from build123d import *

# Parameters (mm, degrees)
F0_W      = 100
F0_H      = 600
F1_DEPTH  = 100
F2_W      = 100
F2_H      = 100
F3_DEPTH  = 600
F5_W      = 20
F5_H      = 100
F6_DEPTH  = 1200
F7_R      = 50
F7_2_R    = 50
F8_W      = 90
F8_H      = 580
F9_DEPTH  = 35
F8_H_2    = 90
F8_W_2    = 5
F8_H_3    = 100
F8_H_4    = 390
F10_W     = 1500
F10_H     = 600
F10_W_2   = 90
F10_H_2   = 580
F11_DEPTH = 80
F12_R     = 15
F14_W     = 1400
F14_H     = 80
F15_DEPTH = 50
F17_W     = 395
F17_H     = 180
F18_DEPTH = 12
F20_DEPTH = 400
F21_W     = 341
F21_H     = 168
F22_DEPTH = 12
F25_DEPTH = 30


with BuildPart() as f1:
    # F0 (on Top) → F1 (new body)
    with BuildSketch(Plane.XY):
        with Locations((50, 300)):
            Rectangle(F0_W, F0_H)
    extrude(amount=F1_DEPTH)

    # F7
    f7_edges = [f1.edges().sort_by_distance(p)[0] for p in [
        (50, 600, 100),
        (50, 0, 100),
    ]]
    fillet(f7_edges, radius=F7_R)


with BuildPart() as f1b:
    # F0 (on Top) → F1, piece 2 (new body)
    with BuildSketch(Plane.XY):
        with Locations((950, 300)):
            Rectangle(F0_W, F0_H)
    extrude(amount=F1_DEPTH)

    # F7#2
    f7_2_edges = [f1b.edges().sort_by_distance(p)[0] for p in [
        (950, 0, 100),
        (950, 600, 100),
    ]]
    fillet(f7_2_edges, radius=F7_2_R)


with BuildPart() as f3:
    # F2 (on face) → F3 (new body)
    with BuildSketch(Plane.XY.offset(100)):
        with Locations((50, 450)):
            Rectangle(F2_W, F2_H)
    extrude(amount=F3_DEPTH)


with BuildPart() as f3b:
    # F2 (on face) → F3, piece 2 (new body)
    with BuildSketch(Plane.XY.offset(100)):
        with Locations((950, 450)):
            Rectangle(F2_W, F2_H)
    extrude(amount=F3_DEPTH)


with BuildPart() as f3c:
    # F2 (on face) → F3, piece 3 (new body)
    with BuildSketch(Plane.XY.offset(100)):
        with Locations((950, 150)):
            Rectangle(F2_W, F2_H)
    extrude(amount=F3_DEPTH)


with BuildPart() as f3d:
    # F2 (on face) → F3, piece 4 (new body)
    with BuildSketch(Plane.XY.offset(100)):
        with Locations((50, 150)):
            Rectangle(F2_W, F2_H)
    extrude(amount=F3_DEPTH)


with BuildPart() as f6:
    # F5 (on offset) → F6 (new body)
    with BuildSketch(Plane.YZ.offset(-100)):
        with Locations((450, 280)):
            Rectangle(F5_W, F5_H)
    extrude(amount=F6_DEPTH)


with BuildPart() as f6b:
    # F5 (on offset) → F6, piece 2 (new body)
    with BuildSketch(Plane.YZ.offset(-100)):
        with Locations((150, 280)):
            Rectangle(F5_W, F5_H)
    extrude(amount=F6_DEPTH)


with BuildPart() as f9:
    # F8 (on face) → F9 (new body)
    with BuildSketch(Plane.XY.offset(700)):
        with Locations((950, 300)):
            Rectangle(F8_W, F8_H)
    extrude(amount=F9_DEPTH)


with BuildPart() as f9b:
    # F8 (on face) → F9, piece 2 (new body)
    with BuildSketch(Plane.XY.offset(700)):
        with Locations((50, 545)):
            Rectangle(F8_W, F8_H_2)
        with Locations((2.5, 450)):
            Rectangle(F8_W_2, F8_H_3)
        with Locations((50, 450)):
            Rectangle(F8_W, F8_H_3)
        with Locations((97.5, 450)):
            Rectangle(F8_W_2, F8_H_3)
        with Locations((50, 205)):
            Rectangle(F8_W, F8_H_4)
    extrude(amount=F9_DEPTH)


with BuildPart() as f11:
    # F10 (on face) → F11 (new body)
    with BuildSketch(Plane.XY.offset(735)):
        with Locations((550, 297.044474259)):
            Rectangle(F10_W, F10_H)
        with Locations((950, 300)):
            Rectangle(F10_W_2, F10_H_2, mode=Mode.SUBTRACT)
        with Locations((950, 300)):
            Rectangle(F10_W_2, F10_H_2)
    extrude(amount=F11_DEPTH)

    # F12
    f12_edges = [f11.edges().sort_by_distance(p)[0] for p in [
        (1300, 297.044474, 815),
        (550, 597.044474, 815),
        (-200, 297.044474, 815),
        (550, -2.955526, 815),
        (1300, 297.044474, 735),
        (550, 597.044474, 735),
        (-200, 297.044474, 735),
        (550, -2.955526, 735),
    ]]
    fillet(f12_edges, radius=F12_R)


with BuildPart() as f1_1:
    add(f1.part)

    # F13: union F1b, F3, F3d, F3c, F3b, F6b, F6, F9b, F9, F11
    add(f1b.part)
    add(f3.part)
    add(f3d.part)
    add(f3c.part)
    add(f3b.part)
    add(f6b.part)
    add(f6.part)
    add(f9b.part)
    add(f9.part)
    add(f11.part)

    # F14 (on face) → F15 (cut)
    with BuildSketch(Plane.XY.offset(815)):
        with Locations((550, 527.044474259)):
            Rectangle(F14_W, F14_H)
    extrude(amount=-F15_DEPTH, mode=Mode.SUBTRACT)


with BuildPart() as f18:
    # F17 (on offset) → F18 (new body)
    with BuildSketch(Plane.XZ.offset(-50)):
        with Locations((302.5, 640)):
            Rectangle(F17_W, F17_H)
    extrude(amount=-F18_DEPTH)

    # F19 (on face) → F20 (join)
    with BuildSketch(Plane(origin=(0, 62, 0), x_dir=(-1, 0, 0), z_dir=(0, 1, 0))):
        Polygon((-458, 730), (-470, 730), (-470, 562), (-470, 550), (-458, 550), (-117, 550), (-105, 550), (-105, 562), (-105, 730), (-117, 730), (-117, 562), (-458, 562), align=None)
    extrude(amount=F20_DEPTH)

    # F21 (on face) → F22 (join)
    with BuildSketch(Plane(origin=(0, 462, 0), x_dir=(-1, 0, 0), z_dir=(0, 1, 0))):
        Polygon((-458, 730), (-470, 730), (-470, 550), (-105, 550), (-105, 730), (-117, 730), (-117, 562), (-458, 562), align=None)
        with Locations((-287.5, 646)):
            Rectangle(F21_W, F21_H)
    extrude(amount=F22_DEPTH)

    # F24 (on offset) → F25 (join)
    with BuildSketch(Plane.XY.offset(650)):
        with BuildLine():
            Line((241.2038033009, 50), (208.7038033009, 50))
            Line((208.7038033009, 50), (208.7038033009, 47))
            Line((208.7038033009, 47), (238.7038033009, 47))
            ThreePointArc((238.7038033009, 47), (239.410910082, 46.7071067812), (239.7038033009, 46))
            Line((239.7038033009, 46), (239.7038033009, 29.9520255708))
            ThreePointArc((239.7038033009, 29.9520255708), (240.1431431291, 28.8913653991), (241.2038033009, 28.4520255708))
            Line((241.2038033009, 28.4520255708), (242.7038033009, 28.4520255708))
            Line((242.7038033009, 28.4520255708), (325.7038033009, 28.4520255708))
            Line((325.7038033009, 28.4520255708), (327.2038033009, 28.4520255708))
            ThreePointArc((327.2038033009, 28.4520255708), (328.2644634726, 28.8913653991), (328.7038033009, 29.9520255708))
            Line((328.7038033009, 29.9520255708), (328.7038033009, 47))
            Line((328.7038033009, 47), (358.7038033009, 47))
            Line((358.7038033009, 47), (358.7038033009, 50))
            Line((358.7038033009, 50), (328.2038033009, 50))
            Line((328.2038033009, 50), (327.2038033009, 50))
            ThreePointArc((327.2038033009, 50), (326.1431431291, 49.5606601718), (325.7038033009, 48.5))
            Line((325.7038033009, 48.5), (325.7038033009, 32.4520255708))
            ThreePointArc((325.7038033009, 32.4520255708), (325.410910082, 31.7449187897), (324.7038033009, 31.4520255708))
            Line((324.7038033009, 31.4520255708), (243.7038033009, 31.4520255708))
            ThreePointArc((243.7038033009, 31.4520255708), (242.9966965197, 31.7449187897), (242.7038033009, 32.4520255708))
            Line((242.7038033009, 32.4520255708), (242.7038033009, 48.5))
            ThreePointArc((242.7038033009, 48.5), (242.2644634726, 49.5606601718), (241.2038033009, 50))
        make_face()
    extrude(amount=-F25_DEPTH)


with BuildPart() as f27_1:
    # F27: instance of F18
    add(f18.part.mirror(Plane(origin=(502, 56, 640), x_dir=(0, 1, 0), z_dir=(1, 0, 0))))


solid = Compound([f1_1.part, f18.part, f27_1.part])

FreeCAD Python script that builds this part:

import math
import FreeCAD as App
import Part
import Sketcher

V = App.Vector


def edges_at(feature, points):
    """Names of the edges that pass closest to the given points."""
    edges = feature.Shape.Edges
    near = lambda p: min(range(len(edges)), key=lambda i: edges[i].distToShape(Part.Vertex(*p))[0])
    return sorted({f"Edge{near(p) + 1}" for p in points})

doc = App.newDocument("Part")
body = doc.addObject("PartDesign::Body", "Body")

# Sketch on XY plane
sketch1 = body.newObject("Sketcher::SketchObject", "Sketch")
sketch1.AttachmentSupport = (doc.getObject("XY_Plane"), [""])
sketch1.MapMode = "FlatFace"
sketch1.addGeometry(Part.LineSegment(V(0, 600, 0), V(0, 0, 0)), False)
sketch1.addGeometry(Part.LineSegment(V(0, 0, 0), V(100, 0, 0)), False)
sketch1.addGeometry(Part.LineSegment(V(100, 0, 0), V(100, 600, 0)), False)
sketch1.addGeometry(Part.LineSegment(V(100, 600, 0), V(0, 600, 0)), False)
sketch1.addConstraint(Sketcher.Constraint("Coincident", 0, 2, 1, 1))
sketch1.addConstraint(Sketcher.Constraint("Coincident", 1, 2, 2, 1))
sketch1.addConstraint(Sketcher.Constraint("Coincident", 2, 2, 3, 1))
sketch1.addConstraint(Sketcher.Constraint("Coincident", 3, 2, 0, 1))
sketch1.addConstraint(Sketcher.Constraint("Vertical", 0))
sketch1.addConstraint(Sketcher.Constraint("Horizontal", 1))
sketch1.addConstraint(Sketcher.Constraint("Vertical", 2))
sketch1.addConstraint(Sketcher.Constraint("Horizontal", 3))
sketch1.addConstraint(Sketcher.Constraint("Coincident", 0, 2, -1, 1))
sketch1.addConstraint(Sketcher.Constraint("DistanceX", 1, 1, 1, 2, 100.0))
sketch1.addConstraint(Sketcher.Constraint("DistanceY", 0, 2, 0, 1, 600.0))
pad1 = body.newObject("PartDesign::Pad", "Pad")
pad1.Profile = sketch1
pad1.Length = 100
doc.recompute()

fillet = body.newObject("PartDesign::Fillet", "Fillet")
fillet.Base = (pad1, edges_at(pad1, [(50, 600, 100), (50, 0, 100)]))
fillet.Radius = 50
body2 = doc.addObject("PartDesign::Body", "Body001")

# Sketch on XY plane
sketch2 = body2.newObject("Sketcher::SketchObject", "Sketch001")
sketch2.AttachmentSupport = (doc.getObject("XY_Plane001"), [""])
sketch2.MapMode = "FlatFace"
sketch2.addGeometry(Part.LineSegment(V(900, 600, 0), V(900, 0, 0)), False)
sketch2.addGeometry(Part.LineSegment(V(900, 0, 0), V(1000, 0, 0)), False)
sketch2.addGeometry(Part.LineSegment(V(1000, 0, 0), V(1000, 600, 0)), False)
sketch2.addGeometry(Part.LineSegment(V(1000, 600, 0), V(900, 600, 0)), False)
sketch2.addConstraint(Sketcher.Constraint("Coincident", 0, 2, 1, 1))
sketch2.addConstraint(Sketcher.Constraint("Coincident", 1, 2, 2, 1))
sketch2.addConstraint(Sketcher.Constraint("Coincident", 2, 2, 3, 1))
sketch2.addConstraint(Sketcher.Constraint("Coincident", 3, 2, 0, 1))
sketch2.addConstraint(Sketcher.Constraint("Vertical", 0))
sketch2.addConstraint(Sketcher.Constraint("Horizontal", 1))
sketch2.addConstraint(Sketcher.Constraint("Vertical", 2))
sketch2.addConstraint(Sketcher.Constraint("Horizontal", 3))
sketch2.addConstraint(Sketcher.Constraint("PointOnObject", 0, 2, -1))
sketch2.addConstraint(Sketcher.Constraint("DistanceX", 1, 1, 1, 2, 100.0))
sketch2.addConstraint(Sketcher.Constraint("DistanceY", 0, 2, 0, 1, 600.0))
sketch2.addConstraint(Sketcher.Constraint("DistanceX", -1, 1, 0, 2, 900.0))
pad2 = body2.newObject("PartDesign::Pad", "Pad001")
pad2.Profile = sketch2
pad2.Length = 100
doc.recompute()

fillet2 = body2.newObject("PartDesign::Fillet", "Fillet001")
fillet2.Base = (pad2, edges_at(pad2, [(950, 0, 100), (950, 600, 100)]))
fillet2.Radius = 50
body3 = doc.addObject("PartDesign::Body", "Body002")

# Sketch on XY plane
sketch3 = body3.newObject("Sketcher::SketchObject", "Sketch002")
sketch3.AttachmentSupport = (doc.getObject("XY_Plane002"), [""])
sketch3.MapMode = "FlatFace"
sketch3.AttachmentOffset = App.Placement(V(0, 0, 100), App.Rotation())
sketch3.addGeometry(Part.LineSegment(V(0, 500, 0), V(0, 400, 0)), False)
sketch3.addGeometry(Part.LineSegment(V(0, 400, 0), V(100, 400, 0)), False)
sketch3.addGeometry(Part.LineSegment(V(100, 400, 0), V(100, 500, 0)), False)
sketch3.addGeometry(Part.LineSegment(V(100, 500, 0), V(0, 500, 0)), False)
sketch3.addConstraint(Sketcher.Constraint("Coincident", 0, 2, 1, 1))
sketch3.addConstraint(Sketcher.Constraint("Coincident", 1, 2, 2, 1))
sketch3.addConstraint(Sketcher.Constraint("Coincident", 2, 2, 3, 1))
sketch3.addConstraint(Sketcher.Constraint("Coincident", 3, 2, 0, 1))
sketch3.addConstraint(Sketcher.Constraint("Vertical", 0))
sketch3.addConstraint(Sketcher.Constraint("Horizontal", 1))
sketch3.addConstraint(Sketcher.Constraint("Vertical", 2))
sketch3.addConstraint(Sketcher.Constraint("Horizontal", 3))
sketch3.addConstraint(Sketcher.Constraint("PointOnObject", 0, 2, -2))
sketch3.addConstraint(Sketcher.Constraint("Equal", 3, 0))
sketch3.addConstraint(Sketcher.Constraint("DistanceX", 1, 1, 1, 2, 100.0))
sketch3.addConstraint(Sketcher.Constraint("DistanceY", -1, 1, 0, 2, 400.0))
pad3 = body3.newObject("PartDesign::Pad", "Pad002")
pad3.Profile = sketch3
pad3.Length = 600
body4 = doc.addObject("PartDesign::Body", "Body003")

# Sketch on XY plane
sketch4 = body4.newObject("Sketcher::SketchObject", "Sketch003")
sketch4.AttachmentSupport = (doc.getObject("XY_Plane003"), [""])
sketch4.MapMode = "FlatFace"
sketch4.AttachmentOffset = App.Placement(V(0, 0, 100), App.Rotation())
sketch4.addGeometry(Part.LineSegment(V(900, 500, 0), V(900, 400, 0)), False)
sketch4.addGeometry(Part.LineSegment(V(900, 400, 0), V(1000, 400, 0)), False)
sketch4.addGeometry(Part.LineSegment(V(1000, 400, 0), V(1000, 500, 0)), False)
sketch4.addGeometry(Part.LineSegment(V(1000, 500, 0), V(900, 500, 0)), False)
sketch4.addConstraint(Sketcher.Constraint("Coincident", 0, 2, 1, 1))
sketch4.addConstraint(Sketcher.Constraint("Coincident", 1, 2, 2, 1))
sketch4.addConstraint(Sketcher.Constraint("Coincident", 2, 2, 3, 1))
sketch4.addConstraint(Sketcher.Constraint("Coincident", 3, 2, 0, 1))
sketch4.addConstraint(Sketcher.Constraint("Vertical", 0))
sketch4.addConstraint(Sketcher.Constraint("Horizontal", 1))
sketch4.addConstraint(Sketcher.Constraint("Vertical", 2))
sketch4.addConstraint(Sketcher.Constraint("Horizontal", 3))
sketch4.addConstraint(Sketcher.Constraint("Equal", 3, 0))
sketch4.addConstraint(Sketcher.Constraint("DistanceX", 1, 1, 1, 2, 100.0))
sketch4.addConstraint(Sketcher.Constraint("DistanceX", -1, 1, 0, 2, 900.0))
sketch4.addConstraint(Sketcher.Constraint("DistanceY", -1, 1, 0, 2, 400.0))
pad4 = body4.newObject("PartDesign::Pad", "Pad003")
pad4.Profile = sketch4
pad4.Length = 600
body5 = doc.addObject("PartDesign::Body", "Body004")

# Sketch on XY plane
sketch5 = body5.newObject("Sketcher::SketchObject", "Sketch004")
sketch5.AttachmentSupport = (doc.getObject("XY_Plane004"), [""])
sketch5.MapMode = "FlatFace"
sketch5.AttachmentOffset = App.Placement(V(0, 0, 100), App.Rotation())
sketch5.addGeometry(Part.LineSegment(V(900, 200, 0), V(900, 100, 0)), False)
sketch5.addGeometry(Part.LineSegment(V(900, 100, 0), V(1000, 100, 0)), False)
sketch5.addGeometry(Part.LineSegment(V(1000, 100, 0), V(1000, 200, 0)), False)
sketch5.addGeometry(Part.LineSegment(V(1000, 200, 0), V(900, 200, 0)), False)
sketch5.addConstraint(Sketcher.Constraint("Coincident", 0, 2, 1, 1))
sketch5.addConstraint(Sketcher.Constraint("Coincident", 1, 2, 2, 1))
sketch5.addConstraint(Sketcher.Constraint("Coincident", 2, 2, 3, 1))
sketch5.addConstraint(Sketcher.Constraint("Coincident", 3, 2, 0, 1))
sketch5.addConstraint(Sketcher.Constraint("Vertical", 0))
sketch5.addConstraint(Sketcher.Constraint("Horizontal", 1))
sketch5.addConstraint(Sketcher.Constraint("Vertical", 2))
sketch5.addConstraint(Sketcher.Constraint("Horizontal", 3))
sketch5.addConstraint(Sketcher.Constraint("Equal", 3, 0))
sketch5.addConstraint(Sketcher.Constraint("DistanceX", 1, 1, 1, 2, 100.0))
sketch5.addConstraint(Sketcher.Constraint("DistanceX", -1, 1, 0, 2, 900.0))
sketch5.addConstraint(Sketcher.Constraint("DistanceY", -1, 1, 0, 2, 100.0))
pad5 = body5.newObject("PartDesign::Pad", "Pad004")
pad5.Profile = sketch5
pad5.Length = 600
body6 = doc.addObject("PartDesign::Body", "Body005")

# Sketch on XY plane
sketch6 = body6.newObject("Sketcher::SketchObject", "Sketch005")
sketch6.AttachmentSupport = (doc.getObject("XY_Plane005"), [""])
sketch6.MapMode = "FlatFace"
sketch6.AttachmentOffset = App.Placement(V(0, 0, 100), App.Rotation())
sketch6.addGeometry(Part.LineSegment(V(0, 200, 0), V(0, 100, 0)), False)
sketch6.addGeometry(Part.LineSegment(V(0, 100, 0), V(100, 100, 0)), False)
sketch6.addGeometry(Part.LineSegment(V(100, 100, 0), V(100, 200, 0)), False)
sketch6.addGeometry(Part.LineSegment(V(100, 200, 0), V(0, 200, 0)), False)
sketch6.addConstraint(Sketcher.Constraint("Coincident", 0, 2, 1, 1))
sketch6.addConstraint(Sketcher.Constraint("Coincident", 1, 2, 2, 1))
sketch6.addConstraint(Sketcher.Constraint("Coincident", 2, 2, 3, 1))
sketch6.addConstraint(Sketcher.Constraint("Coincident", 3, 2, 0, 1))
sketch6.addConstraint(Sketcher.Constraint("Vertical", 0))
sketch6.addConstraint(Sketcher.Constraint("Horizontal", 1))
sketch6.addConstraint(Sketcher.Constraint("Vertical", 2))
sketch6.addConstraint(Sketcher.Constraint("Horizontal", 3))
sketch6.addConstraint(Sketcher.Constraint("PointOnObject", 0, 2, -2))
sketch6.addConstraint(Sketcher.Constraint("Equal", 3, 0))
sketch6.addConstraint(Sketcher.Constraint("DistanceX", 1, 1, 1, 2, 100.0))
sketch6.addConstraint(Sketcher.Constraint("DistanceY", -1, 1, 0, 2, 100.0))
pad6 = body6.newObject("PartDesign::Pad", "Pad005")
pad6.Profile = sketch6
pad6.Length = 600
body7 = doc.addObject("PartDesign::Body", "Body006")

# Sketch on YZ plane
sketch7 = body7.newObject("Sketcher::SketchObject", "Sketch006")
sketch7.AttachmentSupport = (doc.getObject("YZ_Plane006"), [""])
sketch7.MapMode = "FlatFace"
sketch7.AttachmentOffset = App.Placement(V(0, 0, -100), App.Rotation())
sketch7.addGeometry(Part.LineSegment(V(440, 330, 0), V(440, 230, 0)), False)
sketch7.addGeometry(Part.LineSegment(V(440, 230, 0), V(460, 230, 0)), False)
sketch7.addGeometry(Part.LineSegment(V(460, 230, 0), V(460, 330, 0)), False)
sketch7.addGeometry(Part.LineSegment(V(460, 330, 0), V(440, 330, 0)), False)
sketch7.addConstraint(Sketcher.Constraint("Coincident", 0, 2, 1, 1))
sketch7.addConstraint(Sketcher.Constraint("Coincident", 1, 2, 2, 1))
sketch7.addConstraint(Sketcher.Constraint("Coincident", 2, 2, 3, 1))
sketch7.addConstraint(Sketcher.Constraint("Coincident", 3, 2, 0, 1))
sketch7.addConstraint(Sketcher.Constraint("Vertical", 0))
sketch7.addConstraint(Sketcher.Constraint("Horizontal", 1))
sketch7.addConstraint(Sketcher.Constraint("Vertical", 2))
sketch7.addConstraint(Sketcher.Constraint("Horizontal", 3))
sketch7.addConstraint(Sketcher.Constraint("DistanceX", 1, 1, 1, 2, 20.0))
sketch7.addConstraint(Sketcher.Constraint("DistanceY", 0, 2, 0, 1, 100.0))
sketch7.addConstraint(Sketcher.Constraint("DistanceX", -1, 1, 0, 2, 440.0))
sketch7.addConstraint(Sketcher.Constraint("DistanceY", -1, 1, 0, 2, 230.0))
pad7 = body7.newObject("PartDesign::Pad", "Pad006")
pad7.Profile = sketch7
pad7.Length = 1200
body8 = doc.addObject("PartDesign::Body", "Body007")

# Sketch on YZ plane
sketch8 = body8.newObject("Sketcher::SketchObject", "Sketch007")
sketch8.AttachmentSupport = (doc.getObject("YZ_Plane007"), [""])
sketch8.MapMode = "FlatFace"
sketch8.AttachmentOffset = App.Placement(V(0, 0, -100), App.Rotation())
sketch8.addGeometry(Part.LineSegment(V(140, 330, 0), V(140, 230, 0)), False)
sketch8.addGeometry(Part.LineSegment(V(140, 230, 0), V(160, 230, 0)), False)
sketch8.addGeometry(Part.LineSegment(V(160, 230, 0), V(160, 330, 0)), False)
sketch8.addGeometry(Part.LineSegment(V(160, 330, 0), V(140, 330, 0)), False)
sketch8.addConstraint(Sketcher.Constraint("Coincident", 0, 2, 1, 1))
sketch8.addConstraint(Sketcher.Constraint("Coincident", 1, 2, 2, 1))
sketch8.addConstraint(Sketcher.Constraint("Coincident", 2, 2, 3, 1))
sketch8.addConstraint(Sketcher.Constraint("Coincident", 3, 2, 0, 1))
sketch8.addConstraint(Sketcher.Constraint("Vertical", 0))
sketch8.addConstraint(Sketcher.Constraint("Horizontal", 1))
sketch8.addConstraint(Sketcher.Constraint("Vertical", 2))
sketch8.addConstraint(Sketcher.Constraint("Horizontal", 3))
sketch8.addConstraint(Sketcher.Constraint("DistanceX", 1, 1, 1, 2, 20.0))
sketch8.addConstraint(Sketcher.Constraint("DistanceY", 0, 2, 0, 1, 100.0))
sketch8.addConstraint(Sketcher.Constraint("DistanceX", -1, 1, 0, 2, 140.0))
sketch8.addConstraint(Sketcher.Constraint("DistanceY", -1, 1, 0, 2, 230.0))
pad8 = body8.newObject("PartDesign::Pad", "Pad007")
pad8.Profile = sketch8
pad8.Length = 1200
body9 = doc.addObject("PartDesign::Body", "Body008")

# Sketch on XY plane
sketch9 = body9.newObject("Sketcher::SketchObject", "Sketch008")
sketch9.AttachmentSupport = (doc.getObject("XY_Plane008"), [""])
sketch9.MapMode = "FlatFace"
sketch9.AttachmentOffset = App.Placement(V(0, 0, 700), App.Rotation())
sketch9.addGeometry(Part.LineSegment(V(905, 590, 0), V(905, 10, 0)), False)
sketch9.addGeometry(Part.LineSegment(V(905, 10, 0), V(995, 10, 0)), False)
sketch9.addGeometry(Part.LineSegment(V(995, 10, 0), V(995, 590, 0)), False)
sketch9.addGeometry(Part.LineSegment(V(995, 590, 0), V(905, 590, 0)), False)
sketch9.addConstraint(Sketcher.Constraint("Coincident", 0, 2, 1, 1))
sketch9.addConstraint(Sketcher.Constraint("Coincident", 1, 2, 2, 1))
sketch9.addConstraint(Sketcher.Constraint("Coincident", 2, 2, 3, 1))
sketch9.addConstraint(Sketcher.Constraint("Coincident", 3, 2, 0, 1))
sketch9.addConstraint(Sketcher.Constraint("Vertical", 0))
sketch9.addConstraint(Sketcher.Constraint("Horizontal", 1))
sketch9.addConstraint(Sketcher.Constraint("Vertical", 2))
sketch9.addConstraint(Sketcher.Constraint("Horizontal", 3))
sketch9.addConstraint(Sketcher.Constraint("DistanceX", 1, 1, 1, 2, 90.0))
sketch9.addConstraint(Sketcher.Constraint("DistanceY", 0, 2, 0, 1, 580.0))
sketch9.addConstraint(Sketcher.Constraint("DistanceX", -1, 1, 0, 2, 905.0))
sketch9.addConstraint(Sketcher.Constraint("DistanceY", -1, 1, 0, 2, 10.0))
pad9 = body9.newObject("PartDesign::Pad", "Pad008")
pad9.Profile = sketch9
pad9.Length = 35
body10 = doc.addObject("PartDesign::Body", "Body009")

# Sketch on XY plane
sketch10 = body10.newObject("Sketcher::SketchObject", "Sketch009")
sketch10.AttachmentSupport = (doc.getObject("XY_Plane009"), [""])
sketch10.MapMode = "FlatFace"
sketch10.AttachmentOffset = App.Placement(V(0, 0, 700), App.Rotation())
sketch10.addGeometry(Part.LineSegment(V(5, 590, 0), V(5, 500, 0)), False)
sketch10.addGeometry(Part.LineSegment(V(5, 500, 0), V(0, 500, 0)), False)
sketch10.addGeometry(Part.LineSegment(V(0, 500, 0), V(0, 400, 0)), False)
sketch10.addGeometry(Part.LineSegment(V(0, 400, 0), V(5, 400, 0)), False)
sketch10.addGeometry(Part.LineSegment(V(5, 400, 0), V(5, 10, 0)), False)
sketch10.addGeometry(Part.LineSegment(V(5, 10, 0), V(95, 10, 0)), False)
sketch10.addGeometry(Part.LineSegment(V(95, 10, 0), V(95, 400, 0)), False)
sketch10.addGeometry(Part.LineSegment(V(95, 400, 0), V(100, 400, 0)), False)
sketch10.addGeometry(Part.LineSegment(V(100, 400, 0), V(100, 500, 0)), False)
sketch10.addGeometry(Part.LineSegment(V(100, 500, 0), V(95, 500, 0)), False)
sketch10.addGeometry(Part.LineSegment(V(95, 500, 0), V(95, 590, 0)), False)
sketch10.addGeometry(Part.LineSegment(V(95, 590, 0), V(5, 590, 0)), False)
sketch10.addConstraint(Sketcher.Constraint("Coincident", 0, 2, 1, 1))
sketch10.addConstraint(Sketcher.Constraint("Coincident", 1, 2, 2, 1))
sketch10.addConstraint(Sketcher.Constraint("Coincident", 2, 2, 3, 1))
sketch10.addConstraint(Sketcher.Constraint("Coincident", 3, 2, 4, 1))
sketch10.addConstraint(Sketcher.Constraint("Coincident", 4, 2, 5, 1))
sketch10.addConstraint(Sketcher.Constraint("Coincident", 5, 2, 6, 1))
sketch10.addConstraint(Sketcher.Constraint("Coincident", 6, 2, 7, 1))
sketch10.addConstraint(Sketcher.Constraint("Coincident", 7, 2, 8, 1))
sketch10.addConstraint(Sketcher.Constraint("Coincident", 8, 2, 9, 1))
sketch10.addConstraint(Sketcher.Constraint("Coincident", 9, 2, 10, 1))
sketch10.addConstraint(Sketcher.Constraint("Coincident", 10, 2, 11, 1))
sketch10.addConstraint(Sketcher.Constraint("Coincident", 11, 2, 0, 1))
sketch10.addConstraint(Sketcher.Constraint("Vertical", 0))
sketch10.addConstraint(Sketcher.Constraint("Horizontal", 1))
sketch10.addConstraint(Sketcher.Constraint("Vertical", 2))
sketch10.addConstraint(Sketcher.Constraint("Horizontal", 3))
sketch10.addConstraint(Sketcher.Constraint("Vertical", 4))
sketch10.addConstraint(Sketcher.Constraint("Horizontal", 5))
sketch10.addConstraint(Sketcher.Constraint("Vertical", 6))
sketch10.addConstraint(Sketcher.Constraint("Horizontal", 7))
sketch10.addConstraint(Sketcher.Constraint("Vertical", 8))
sketch10.addConstraint(Sketcher.Constraint("Horizontal", 9))
sketch10.addConstraint(Sketcher.Constraint("Vertical", 10))
sketch10.addConstraint(Sketcher.Constraint("Horizontal", 11))
sketch10.addConstraint(Sketcher.Constraint("PointOnObject", 1, 2, -2))
sketch10.addConstraint(Sketcher.Constraint("Horizontal", 3, 2, 6, 2))
sketch10.addConstraint(Sketcher.Constraint("Horizontal", 1, 2, 8, 2))
sketch10.addConstraint(Sketcher.Constraint("Vertical", 0, 2, 3, 2))
sketch10.addConstraint(Sketcher.Constraint("Vertical", 6, 2, 9, 2))
sketch10.addConstraint(Sketcher.Constraint("Equal", 3, 7))
sketch10.addConstraint(Sketcher.Constraint("Equal", 11, 0))
sketch10.addConstraint(Sketcher.Constraint("DistanceX", 1, 2, 1, 1, 5.0))
sketch10.addConstraint(Sketcher.Constraint("DistanceX", 5, 1, 5, 2, 90.0))
sketch10.addConstraint(Sketcher.Constraint("DistanceY", 2, 2, 2, 1, 100.0))
sketch10.addConstraint(Sketcher.Constraint("DistanceY", 4, 2, 4, 1, 390.0))
sketch10.addConstraint(Sketcher.Constraint("DistanceY", -1, 1, 0, 2, 500.0))
pad10 = body10.newObject("PartDesign::Pad", "Pad009")
pad10.Profile = sketch10
pad10.Length = 35
body11 = doc.addObject("PartDesign::Body", "Body010")

# Sketch on XY plane
sketch11 = body11.newObject("Sketcher::SketchObject", "Sketch010")
sketch11.AttachmentSupport = (doc.getObject("XY_Plane010"), [""])
sketch11.MapMode = "FlatFace"
sketch11.AttachmentOffset = App.Placement(V(0, 0, 735), App.Rotation())
sketch11.addGeometry(Part.LineSegment(V(-200, 597, 0), V(-200, -3, 0)), False)
sketch11.addGeometry(Part.LineSegment(V(-200, -3, 0), V(1300, -3, 0)), False)
sketch11.addGeometry(Part.LineSegment(V(1300, -3, 0), V(1300, 597, 0)), False)
sketch11.addGeometry(Part.LineSegment(V(1300, 597, 0), V(-200, 597, 0)), False)
sketch11.addConstraint(Sketcher.Constraint("Coincident", 0, 2, 1, 1))
sketch11.addConstraint(Sketcher.Constraint("Coincident", 1, 2, 2, 1))
sketch11.addConstraint(Sketcher.Constraint("Coincident", 2, 2, 3, 1))
sketch11.addConstraint(Sketcher.Constraint("Coincident", 3, 2, 0, 1))
sketch11.addConstraint(Sketcher.Constraint("Vertical", 0))
sketch11.addConstraint(Sketcher.Constraint("Horizontal", 1))
sketch11.addConstraint(Sketcher.Constraint("Vertical", 2))
sketch11.addConstraint(Sketcher.Constraint("Horizontal", 3))
sketch11.addConstraint(Sketcher.Constraint("DistanceX", 1, 1, 1, 2, 1500.0))
sketch11.addConstraint(Sketcher.Constraint("DistanceY", 0, 2, 0, 1, 600.0))
sketch11.addConstraint(Sketcher.Constraint("DistanceX", 0, 2, -1, 1, 200.0))
sketch11.addConstraint(Sketcher.Constraint("DistanceY", 0, 2, -1, 1, 2.955526))
pad11 = body11.newObject("PartDesign::Pad", "Pad010")
pad11.Profile = sketch11
pad11.Length = 80
doc.recompute()

fillet3 = body11.newObject("PartDesign::Fillet", "Fillet002")
fillet3.Base = (pad11, edges_at(pad11, [
    (1300, 297.044, 815),
    (550, 597.044, 815),
    (-200, 297.044, 815),
    (550, -2.956, 815),
    (1300, 297.044, 735),
    (550, 597.044, 735),
    (-200, 297.044, 735),
    (550, -2.956, 735),
]))
fillet3.Radius = 15
body.AllowCompound = True
doc.recompute()

boolean = body.newObject("PartDesign::Boolean", "Boolean")
boolean.Type = "Fuse"
boolean.addObjects([body2])
doc.recompute()

boolean2 = body.newObject("PartDesign::Boolean", "Boolean001")
boolean2.Type = "Fuse"
boolean2.addObjects([body3])
doc.recompute()

boolean3 = body.newObject("PartDesign::Boolean", "Boolean002")
boolean3.Type = "Fuse"
boolean3.addObjects([body6])
doc.recompute()

boolean4 = body.newObject("PartDesign::Boolean", "Boolean003")
boolean4.Type = "Fuse"
boolean4.addObjects([body5])
doc.recompute()

boolean5 = body.newObject("PartDesign::Boolean", "Boolean004")
boolean5.Type = "Fuse"
boolean5.addObjects([body4])
doc.recompute()

boolean6 = body.newObject("PartDesign::Boolean", "Boolean005")
boolean6.Type = "Fuse"
boolean6.addObjects([body8])
doc.recompute()

boolean7 = body.newObject("PartDesign::Boolean", "Boolean006")
boolean7.Type = "Fuse"
boolean7.addObjects([body7])
doc.recompute()

boolean8 = body.newObject("PartDesign::Boolean", "Boolean007")
boolean8.Type = "Fuse"
boolean8.addObjects([body10])
doc.recompute()

boolean9 = body.newObject("PartDesign::Boolean", "Boolean008")
boolean9.Type = "Fuse"
boolean9.addObjects([body9])
doc.recompute()

boolean10 = body.newObject("PartDesign::Boolean", "Boolean009")
boolean10.Type = "Fuse"
boolean10.addObjects([body11])

# Sketch on XY plane
sketch12 = body.newObject("Sketcher::SketchObject", "Sketch011")
sketch12.AttachmentSupport = (doc.getObject("XY_Plane"), [""])
sketch12.MapMode = "FlatFace"
sketch12.AttachmentOffset = App.Placement(V(0, 0, 815), App.Rotation())
sketch12.addGeometry(Part.LineSegment(V(-150, 567, 0), V(-150, 487, 0)), False)
sketch12.addGeometry(Part.LineSegment(V(-150, 487, 0), V(1250, 487, 0)), False)
sketch12.addGeometry(Part.LineSegment(V(1250, 487, 0), V(1250, 567, 0)), False)
sketch12.addGeometry(Part.LineSegment(V(1250, 567, 0), V(-150, 567, 0)), False)
sketch12.addConstraint(Sketcher.Constraint("Coincident", 0, 2, 1, 1))
sketch12.addConstraint(Sketcher.Constraint("Coincident", 1, 2, 2, 1))
sketch12.addConstraint(Sketcher.Constraint("Coincident", 2, 2, 3, 1))
sketch12.addConstraint(Sketcher.Constraint("Coincident", 3, 2, 0, 1))
sketch12.addConstraint(Sketcher.Constraint("Vertical", 0))
sketch12.addConstraint(Sketcher.Constraint("Horizontal", 1))
sketch12.addConstraint(Sketcher.Constraint("Vertical", 2))
sketch12.addConstraint(Sketcher.Constraint("Horizontal", 3))
sketch12.addConstraint(Sketcher.Constraint("DistanceX", 1, 1, 1, 2, 1400.0))
sketch12.addConstraint(Sketcher.Constraint("DistanceY", 0, 2, 0, 1, 80.0))
sketch12.addConstraint(Sketcher.Constraint("DistanceX", 0, 2, -1, 1, 150.0))
sketch12.addConstraint(Sketcher.Constraint("DistanceY", -1, 1, 0, 2, 487.044474))
pocket1 = body.newObject("PartDesign::Pocket", "Pocket")
pocket1.Profile = sketch12
pocket1.Length = 50
body12 = doc.addObject("PartDesign::Body", "Body011")

# Sketch on XZ plane
sketch13 = body12.newObject("Sketcher::SketchObject", "Sketch012")
sketch13.AttachmentSupport = (doc.getObject("XZ_Plane011"), [""])
sketch13.MapMode = "FlatFace"
sketch13.AttachmentOffset = App.Placement(V(0, 0, -50), App.Rotation())
sketch13.addGeometry(Part.LineSegment(V(105, 730, 0), V(105, 550, 0)), False)
sketch13.addGeometry(Part.LineSegment(V(105, 550, 0), V(500, 550, 0)), False)
sketch13.addGeometry(Part.LineSegment(V(500, 550, 0), V(500, 730, 0)), False)
sketch13.addGeometry(Part.LineSegment(V(500, 730, 0), V(105, 730, 0)), False)
sketch13.addConstraint(Sketcher.Constraint("Coincident", 0, 2, 1, 1))
sketch13.addConstraint(Sketcher.Constraint("Coincident", 1, 2, 2, 1))
sketch13.addConstraint(Sketcher.Constraint("Coincident", 2, 2, 3, 1))
sketch13.addConstraint(Sketcher.Constraint("Coincident", 3, 2, 0, 1))
sketch13.addConstraint(Sketcher.Constraint("Vertical", 0))
sketch13.addConstraint(Sketcher.Constraint("Horizontal", 1))
sketch13.addConstraint(Sketcher.Constraint("Vertical", 2))
sketch13.addConstraint(Sketcher.Constraint("Horizontal", 3))
sketch13.addConstraint(Sketcher.Constraint("DistanceX", 1, 1, 1, 2, 395.0))
sketch13.addConstraint(Sketcher.Constraint("DistanceY", 0, 2, 0, 1, 180.0))
sketch13.addConstraint(Sketcher.Constraint("DistanceX", -1, 1, 0, 2, 105.0))
sketch13.addConstraint(Sketcher.Constraint("DistanceY", -1, 1, 0, 2, 550.0))
pad12 = body12.newObject("PartDesign::Pad", "Pad011")
pad12.Profile = sketch13
pad12.Length = 12
pad12.Reversed = True

# Sketch on XZ plane
sketch14 = body12.newObject("Sketcher::SketchObject", "Sketch013")
sketch14.AttachmentSupport = (doc.getObject("XZ_Plane011"), [""])
sketch14.MapMode = "FlatFace"
sketch14.AttachmentOffset = App.Placement(V(0, 0, -62), App.Rotation())
sketch14.addGeometry(Part.LineSegment(V(458, 730, 0), V(470, 730, 0)), False)
sketch14.addGeometry(Part.LineSegment(V(470, 730, 0), V(470, 550, 0)), False)
sketch14.addGeometry(Part.LineSegment(V(470, 550, 0), V(105, 550, 0)), False)
sketch14.addGeometry(Part.LineSegment(V(105, 550, 0), V(105, 730, 0)), False)
sketch14.addGeometry(Part.LineSegment(V(105, 730, 0), V(117, 730, 0)), False)
sketch14.addGeometry(Part.LineSegment(V(117, 730, 0), V(117, 562, 0)), False)
sketch14.addGeometry(Part.LineSegment(V(117, 562, 0), V(458, 562, 0)), False)
sketch14.addGeometry(Part.LineSegment(V(458, 562, 0), V(458, 730, 0)), False)
sketch14.addConstraint(Sketcher.Constraint("Coincident", 0, 2, 1, 1))
sketch14.addConstraint(Sketcher.Constraint("Coincident", 1, 2, 2, 1))
sketch14.addConstraint(Sketcher.Constraint("Coincident", 2, 2, 3, 1))
sketch14.addConstraint(Sketcher.Constraint("Coincident", 3, 2, 4, 1))
sketch14.addConstraint(Sketcher.Constraint("Coincident", 4, 2, 5, 1))
sketch14.addConstraint(Sketcher.Constraint("Coincident", 5, 2, 6, 1))
sketch14.addConstraint(Sketcher.Constraint("Coincident", 6, 2, 7, 1))
sketch14.addConstraint(Sketcher.Constraint("Coincident", 7, 2, 0, 1))
sketch14.addConstraint(Sketcher.Constraint("Horizontal", 0))
sketch14.addConstraint(Sketcher.Constraint("Vertical", 1))
sketch14.addConstraint(Sketcher.Constraint("Horizontal", 2))
sketch14.addConstraint(Sketcher.Constraint("Vertical", 3))
sketch14.addConstraint(Sketcher.Constraint("Horizontal", 4))
sketch14.addConstraint(Sketcher.Constraint("Vertical", 5))
sketch14.addConstraint(Sketcher.Constraint("Horizontal", 6))
sketch14.addConstraint(Sketcher.Constraint("Vertical", 7))
sketch14.addConstraint(Sketcher.Constraint("Horizontal", 0, 2, 3, 2))
sketch14.addConstraint(Sketcher.Constraint("Equal", 0, 4))
sketch14.addConstraint(Sketcher.Constraint("DistanceX", 0, 1, 0, 2, 12.0))
sketch14.addConstraint(Sketcher.Constraint("DistanceX", 2, 2, 2, 1, 365.0))
sketch14.addConstraint(Sketcher.Constraint("DistanceY", 1, 2, 1, 1, 180.0))
sketch14.addConstraint(Sketcher.Constraint("DistanceY", 5, 2, 5, 1, 168.0))
sketch14.addConstraint(Sketcher.Constraint("DistanceX", -1, 1, 0, 2, 470.0))
sketch14.addConstraint(Sketcher.Constraint("DistanceY", -1, 1, 0, 2, 730.0))
pad13 = body12.newObject("PartDesign::Pad", "Pad012")
pad13.Profile = sketch14
pad13.Length = 400
pad13.Reversed = True

# Sketch on XZ plane
sketch15 = body12.newObject("Sketcher::SketchObject", "Sketch014")
sketch15.AttachmentSupport = (doc.getObject("XZ_Plane011"), [""])
sketch15.MapMode = "FlatFace"
sketch15.AttachmentOffset = App.Placement(V(0, 0, -462), App.Rotation())
sketch15.addGeometry(Part.LineSegment(V(470, 730, 0), V(470, 550, 0)), False)
sketch15.addGeometry(Part.LineSegment(V(470, 550, 0), V(105, 550, 0)), False)
sketch15.addGeometry(Part.LineSegment(V(105, 550, 0), V(105, 730, 0)), False)
sketch15.addGeometry(Part.LineSegment(V(105, 730, 0), V(470, 730, 0)), False)
sketch15.addConstraint(Sketcher.Constraint("Coincident", 0, 2, 1, 1))
sketch15.addConstraint(Sketcher.Constraint("Coincident", 1, 2, 2, 1))
sketch15.addConstraint(Sketcher.Constraint("Coincident", 2, 2, 3, 1))
sketch15.addConstraint(Sketcher.Constraint("Coincident", 3, 2, 0, 1))
sketch15.addConstraint(Sketcher.Constraint("Vertical", 0))
sketch15.addConstraint(Sketcher.Constraint("Horizontal", 1))
sketch15.addConstraint(Sketcher.Constraint("Vertical", 2))
sketch15.addConstraint(Sketcher.Constraint("Horizontal", 3))
sketch15.addConstraint(Sketcher.Constraint("DistanceX", 1, 2, 1, 1, 365.0))
sketch15.addConstraint(Sketcher.Constraint("DistanceY", 0, 2, 0, 1, 180.0))
sketch15.addConstraint(Sketcher.Constraint("DistanceX", -1, 1, 0, 2, 470.0))
sketch15.addConstraint(Sketcher.Constraint("DistanceY", -1, 1, 0, 2, 550.0))
pad14 = body12.newObject("PartDesign::Pad", "Pad013")
pad14.Profile = sketch15
pad14.Length = 12
pad14.Reversed = True

# Sketch on XY plane
sketch16 = body12.newObject("Sketcher::SketchObject", "Sketch015")
sketch16.AttachmentSupport = (doc.getObject("XY_Plane011"), [""])
sketch16.MapMode = "FlatFace"
sketch16.AttachmentOffset = App.Placement(V(0, 0, 650), App.Rotation())
sketch16.addGeometry(Part.LineSegment(V(241.2, 50, 0), V(208.7, 50, 0)), False)
sketch16.addGeometry(Part.LineSegment(V(208.7, 50, 0), V(208.7, 47, 0)), False)
sketch16.addGeometry(Part.LineSegment(V(208.7, 47, 0), V(238.7, 47, 0)), False)
sketch16.addGeometry(Part.ArcOfCircle(Part.Circle(V(238.7, 46, 0), V(0, 0, 1), 1), math.radians(0), math.radians(90)), False)
sketch16.addGeometry(Part.LineSegment(V(239.7, 46, 0), V(239.7, 30, 0)), False)
sketch16.addGeometry(Part.ArcOfCircle(Part.Circle(V(241.2, 30, 0), V(0, 0, 1), 1.5), math.radians(180), math.radians(270)), False)
sketch16.addGeometry(Part.LineSegment(V(241.2, 28.5, 0), V(327.2, 28.5, 0)), False)
sketch16.addGeometry(Part.ArcOfCircle(Part.Circle(V(327.2, 30, 0), V(0, 0, 1), 1.5), math.radians(-90), math.radians(0)), False)
sketch16.addGeometry(Part.LineSegment(V(328.7, 30, 0), V(328.7, 47, 0)), False)
sketch16.addGeometry(Part.LineSegment(V(328.7, 47, 0), V(358.7, 47, 0)), False)
sketch16.addGeometry(Part.LineSegment(V(358.7, 47, 0), V(358.7, 50, 0)), False)
sketch16.addGeometry(Part.LineSegment(V(358.7, 50, 0), V(327.2, 50, 0)), False)
sketch16.addGeometry(Part.ArcOfCircle(Part.Circle(V(327.2, 48.5, 0), V(0, 0, 1), 1.5), math.radians(90), math.radians(180)), False)
sketch16.addGeometry(Part.LineSegment(V(325.7, 48.5, 0), V(325.7, 32.5, 0)), False)
sketch16.addGeometry(Part.ArcOfCircle(Part.Circle(V(324.7, 32.5, 0), V(0, 0, 1), 1), math.radians(-90), math.radians(0)), False)
sketch16.addGeometry(Part.LineSegment(V(324.7, 31.5, 0), V(243.7, 31.5, 0)), False)
sketch16.addGeometry(Part.ArcOfCircle(Part.Circle(V(243.7, 32.5, 0), V(0, 0, 1), 1), math.radians(180), math.radians(270)), False)
sketch16.addGeometry(Part.LineSegment(V(242.7, 32.5, 0), V(242.7, 48.5, 0)), False)
sketch16.addGeometry(Part.ArcOfCircle(Part.Circle(V(241.2, 48.5, 0), V(0, 0, 1), 1.5), math.radians(0), math.radians(90)), False)
sketch16.addConstraint(Sketcher.Constraint("Coincident", 0, 2, 1, 1))
sketch16.addConstraint(Sketcher.Constraint("Coincident", 1, 2, 2, 1))
sketch16.addConstraint(Sketcher.Constraint("Tangent", 2, 2, 3, 2))
sketch16.addConstraint(Sketcher.Constraint("Tangent", 3, 1, 4, 1))
sketch16.addConstraint(Sketcher.Constraint("Tangent", 4, 2, 5, 1))
sketch16.addConstraint(Sketcher.Constraint("Tangent", 5, 2, 6, 1))
sketch16.addConstraint(Sketcher.Constraint("Tangent", 6, 2, 7, 1))
sketch16.addConstraint(Sketcher.Constraint("Tangent", 7, 2, 8, 1))
sketch16.addConstraint(Sketcher.Constraint("Coincident", 8, 2, 9, 1))
sketch16.addConstraint(Sketcher.Constraint("Coincident", 9, 2, 10, 1))
sketch16.addConstraint(Sketcher.Constraint("Coincident", 10, 2, 11, 1))
sketch16.addConstraint(Sketcher.Constraint("Tangent", 11, 2, 12, 1))
sketch16.addConstraint(Sketcher.Constraint("Tangent", 12, 2, 13, 1))
sketch16.addConstraint(Sketcher.Constraint("Tangent", 13, 2, 14, 2))
sketch16.addConstraint(Sketcher.Constraint("Tangent", 14, 1, 15, 1))
sketch16.addConstraint(Sketcher.Constraint("Tangent", 15, 2, 16, 2))
sketch16.addConstraint(Sketcher.Constraint("Tangent", 16, 1, 17, 1))
sketch16.addConstraint(Sketcher.Constraint("Tangent", 17, 2, 18, 1))
sketch16.addConstraint(Sketcher.Constraint("Tangent", 18, 2, 0, 1))
sketch16.addConstraint(Sketcher.Constraint("Horizontal", 0))
sketch16.addConstraint(Sketcher.Constraint("Vertical", 1))
sketch16.addConstraint(Sketcher.Constraint("Horizontal", 2))
sketch16.addConstraint(Sketcher.Constraint("Vertical", 4))
sketch16.addConstraint(Sketcher.Constraint("Horizontal", 6))
sketch16.addConstraint(Sketcher.Constraint("Vertical", 8))
sketch16.addConstraint(Sketcher.Constraint("Horizontal", 9))
sketch16.addConstraint(Sketcher.Constraint("Vertical", 10))
sketch16.addConstraint(Sketcher.Constraint("Horizontal", 11))
sketch16.addConstraint(Sketcher.Constraint("Vertical", 13))
sketch16.addConstraint(Sketcher.Constraint("Horizontal", 15))
sketch16.addConstraint(Sketcher.Constraint("Vertical", 17))
sketch16.addConstraint(Sketcher.Constraint("Equal", 5, 7))
sketch16.addConstraint(Sketcher.Constraint("Equal", 7, 12))
sketch16.addConstraint(Sketcher.Constraint("Equal", 3, 14))
sketch16.addConstraint(Sketcher.Constraint("Equal", 14, 16))
sketch16.addConstraint(Sketcher.Constraint("Equal", 12, 18))
sketch16.addConstraint(Sketcher.Constraint("Horizontal", 12, 3, 18, 3))
sketch16.addConstraint(Sketcher.Constraint("Horizontal", 2, 2, 8, 2))
sketch16.addConstraint(Sketcher.Constraint("Vertical", 7, 3, 12, 3))
sketch16.addConstraint(Sketcher.Constraint("Vertical", 5, 3, 18, 3))
sketch16.addConstraint(Sketcher.Constraint("Equal", 2, 9))
sketch16.addConstraint(Sketcher.Constraint("Equal", 4, 13))
sketch16.addConstraint(Sketcher.Constraint("Radius", 3, 1.0))
sketch16.addConstraint(Sketcher.Constraint("Radius", 5, 1.5))
sketch16.addConstraint(Sketcher.Constraint("DistanceX", 2, 1, 2, 2, 30.0))
sketch16.addConstraint(Sketcher.Constraint("DistanceX", 6, 1, 6, 2, 86.0))
sketch16.addConstraint(Sketcher.Constraint("DistanceY", 1, 2, 1, 1, 3.0))
sketch16.addConstraint(Sketcher.Constraint("DistanceY", -1, 1, 3, 3, 46.0))
sketch16.addConstraint(Sketcher.Constraint("DistanceY", 4, 2, 4, 1, 16.047974))
sketch16.addConstraint(Sketcher.Constraint("DistanceX", -1, 1, 3, 3, 238.703803))
pad15 = body12.newObject("PartDesign::Pad", "Pad014")
pad15.Profile = sketch16
pad15.Length = 30
pad15.Reversed = True
body13 = doc.addObject("PartDesign::Body", "Body012")
doc.recompute()

mirroring = doc.addObject("Part::Mirroring", "Mirroring")
mirroring.Source = body12
mirroring.Base = V(502, 56, 640)
mirroring.Normal = V(1, 0, 0)
body13.BaseFeature = mirroring
doc.recompute()
mirroring.Visibility = False

doc.recompute()
